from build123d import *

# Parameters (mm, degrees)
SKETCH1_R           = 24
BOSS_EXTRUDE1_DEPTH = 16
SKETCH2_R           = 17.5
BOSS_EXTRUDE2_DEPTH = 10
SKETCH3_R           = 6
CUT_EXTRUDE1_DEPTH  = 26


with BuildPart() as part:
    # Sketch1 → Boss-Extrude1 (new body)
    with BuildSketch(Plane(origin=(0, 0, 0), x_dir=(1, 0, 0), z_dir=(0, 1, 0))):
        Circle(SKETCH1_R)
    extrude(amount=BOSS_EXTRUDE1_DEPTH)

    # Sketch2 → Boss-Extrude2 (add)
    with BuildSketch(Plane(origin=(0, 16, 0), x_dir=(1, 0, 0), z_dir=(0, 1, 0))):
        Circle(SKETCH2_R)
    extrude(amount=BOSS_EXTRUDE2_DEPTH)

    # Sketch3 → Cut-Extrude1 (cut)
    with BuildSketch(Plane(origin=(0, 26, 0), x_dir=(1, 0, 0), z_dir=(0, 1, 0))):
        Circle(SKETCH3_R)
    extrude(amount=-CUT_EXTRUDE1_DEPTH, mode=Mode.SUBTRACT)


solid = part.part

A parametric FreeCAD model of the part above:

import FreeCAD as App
import Part
import Sketcher

V = App.Vector

doc = App.newDocument("Part")
body = doc.addObject("PartDesign::Body", "Body")

# Sketch on XZ plane
sketch1 = body.newObject("Sketcher::SketchObject", "Sketch")
sketch1.AttachmentSupport = (doc.getObject("XZ_Plane"), [""])
sketch1.MapMode = "FlatFace"
sketch1.addGeometry(Part.Circle(V(0, 0, 0), V(0, 0, 1), 24), False)
sketch1.addConstraint(Sketcher.Constraint("Coincident", 0, 3, -1, 1))
sketch1.addConstraint(Sketcher.Constraint("Diameter", 0, 48.0))
pad1 = body.newObject("PartDesign::Pad", "Pad")
pad1.Profile = sketch1
pad1.Length = 16
pad1.Reversed = True

# Sketch on XZ plane
sketch2 = body.newObject("Sketcher::SketchObject", "Sketch001")
sketch2.AttachmentSupport = (doc.getObject("XZ_Plane"), [""])
sketch2.MapMode = "FlatFace"
sketch2.AttachmentOffset = App.Placement(V(0, 0, -16), App.Rotation())
sketch2.addGeometry(Part.Circle(V(0, 0, 0), V(0, 0, 1), 18), False)
sketch2.addConstraint(Sketcher.Constraint("Coincident", 0, 3, -1, 1))
sketch2.addConstraint(Sketcher.Constraint("Diameter", 0, 35.0))
pad2 = body.newObject("PartDesign::Pad", "Pad001")
pad2.Profile = sketch2
pad2.Length = 10
pad2.Reversed = True

# Sketch on XZ plane
sketch3 = body.newObject("Sketcher::SketchObject", "Sketch002")
sketch3.AttachmentSupport = (doc.getObject("XZ_Plane"), [""])
sketch3.MapMode = "FlatFace"
sketch3.AttachmentOffset = App.Placement(V(0, 0, -26), App.Rotation())
sketch3.addGeometry(Part.Circle(V(0, 0, 0), V(0, 0, 1), 6), False)
sketch3.addConstraint(Sketcher.Constraint("Coincident", 0, 3, -1, 1))
sketch3.addConstraint(Sketcher.Constraint("Diameter", 0, 12.0))
pocket1 = body.newObject("PartDesign::Pocket", "Pocket")
pocket1.Profile = sketch3
pocket1.Length = 26
pocket1.Reversed = True

doc.recompute()
